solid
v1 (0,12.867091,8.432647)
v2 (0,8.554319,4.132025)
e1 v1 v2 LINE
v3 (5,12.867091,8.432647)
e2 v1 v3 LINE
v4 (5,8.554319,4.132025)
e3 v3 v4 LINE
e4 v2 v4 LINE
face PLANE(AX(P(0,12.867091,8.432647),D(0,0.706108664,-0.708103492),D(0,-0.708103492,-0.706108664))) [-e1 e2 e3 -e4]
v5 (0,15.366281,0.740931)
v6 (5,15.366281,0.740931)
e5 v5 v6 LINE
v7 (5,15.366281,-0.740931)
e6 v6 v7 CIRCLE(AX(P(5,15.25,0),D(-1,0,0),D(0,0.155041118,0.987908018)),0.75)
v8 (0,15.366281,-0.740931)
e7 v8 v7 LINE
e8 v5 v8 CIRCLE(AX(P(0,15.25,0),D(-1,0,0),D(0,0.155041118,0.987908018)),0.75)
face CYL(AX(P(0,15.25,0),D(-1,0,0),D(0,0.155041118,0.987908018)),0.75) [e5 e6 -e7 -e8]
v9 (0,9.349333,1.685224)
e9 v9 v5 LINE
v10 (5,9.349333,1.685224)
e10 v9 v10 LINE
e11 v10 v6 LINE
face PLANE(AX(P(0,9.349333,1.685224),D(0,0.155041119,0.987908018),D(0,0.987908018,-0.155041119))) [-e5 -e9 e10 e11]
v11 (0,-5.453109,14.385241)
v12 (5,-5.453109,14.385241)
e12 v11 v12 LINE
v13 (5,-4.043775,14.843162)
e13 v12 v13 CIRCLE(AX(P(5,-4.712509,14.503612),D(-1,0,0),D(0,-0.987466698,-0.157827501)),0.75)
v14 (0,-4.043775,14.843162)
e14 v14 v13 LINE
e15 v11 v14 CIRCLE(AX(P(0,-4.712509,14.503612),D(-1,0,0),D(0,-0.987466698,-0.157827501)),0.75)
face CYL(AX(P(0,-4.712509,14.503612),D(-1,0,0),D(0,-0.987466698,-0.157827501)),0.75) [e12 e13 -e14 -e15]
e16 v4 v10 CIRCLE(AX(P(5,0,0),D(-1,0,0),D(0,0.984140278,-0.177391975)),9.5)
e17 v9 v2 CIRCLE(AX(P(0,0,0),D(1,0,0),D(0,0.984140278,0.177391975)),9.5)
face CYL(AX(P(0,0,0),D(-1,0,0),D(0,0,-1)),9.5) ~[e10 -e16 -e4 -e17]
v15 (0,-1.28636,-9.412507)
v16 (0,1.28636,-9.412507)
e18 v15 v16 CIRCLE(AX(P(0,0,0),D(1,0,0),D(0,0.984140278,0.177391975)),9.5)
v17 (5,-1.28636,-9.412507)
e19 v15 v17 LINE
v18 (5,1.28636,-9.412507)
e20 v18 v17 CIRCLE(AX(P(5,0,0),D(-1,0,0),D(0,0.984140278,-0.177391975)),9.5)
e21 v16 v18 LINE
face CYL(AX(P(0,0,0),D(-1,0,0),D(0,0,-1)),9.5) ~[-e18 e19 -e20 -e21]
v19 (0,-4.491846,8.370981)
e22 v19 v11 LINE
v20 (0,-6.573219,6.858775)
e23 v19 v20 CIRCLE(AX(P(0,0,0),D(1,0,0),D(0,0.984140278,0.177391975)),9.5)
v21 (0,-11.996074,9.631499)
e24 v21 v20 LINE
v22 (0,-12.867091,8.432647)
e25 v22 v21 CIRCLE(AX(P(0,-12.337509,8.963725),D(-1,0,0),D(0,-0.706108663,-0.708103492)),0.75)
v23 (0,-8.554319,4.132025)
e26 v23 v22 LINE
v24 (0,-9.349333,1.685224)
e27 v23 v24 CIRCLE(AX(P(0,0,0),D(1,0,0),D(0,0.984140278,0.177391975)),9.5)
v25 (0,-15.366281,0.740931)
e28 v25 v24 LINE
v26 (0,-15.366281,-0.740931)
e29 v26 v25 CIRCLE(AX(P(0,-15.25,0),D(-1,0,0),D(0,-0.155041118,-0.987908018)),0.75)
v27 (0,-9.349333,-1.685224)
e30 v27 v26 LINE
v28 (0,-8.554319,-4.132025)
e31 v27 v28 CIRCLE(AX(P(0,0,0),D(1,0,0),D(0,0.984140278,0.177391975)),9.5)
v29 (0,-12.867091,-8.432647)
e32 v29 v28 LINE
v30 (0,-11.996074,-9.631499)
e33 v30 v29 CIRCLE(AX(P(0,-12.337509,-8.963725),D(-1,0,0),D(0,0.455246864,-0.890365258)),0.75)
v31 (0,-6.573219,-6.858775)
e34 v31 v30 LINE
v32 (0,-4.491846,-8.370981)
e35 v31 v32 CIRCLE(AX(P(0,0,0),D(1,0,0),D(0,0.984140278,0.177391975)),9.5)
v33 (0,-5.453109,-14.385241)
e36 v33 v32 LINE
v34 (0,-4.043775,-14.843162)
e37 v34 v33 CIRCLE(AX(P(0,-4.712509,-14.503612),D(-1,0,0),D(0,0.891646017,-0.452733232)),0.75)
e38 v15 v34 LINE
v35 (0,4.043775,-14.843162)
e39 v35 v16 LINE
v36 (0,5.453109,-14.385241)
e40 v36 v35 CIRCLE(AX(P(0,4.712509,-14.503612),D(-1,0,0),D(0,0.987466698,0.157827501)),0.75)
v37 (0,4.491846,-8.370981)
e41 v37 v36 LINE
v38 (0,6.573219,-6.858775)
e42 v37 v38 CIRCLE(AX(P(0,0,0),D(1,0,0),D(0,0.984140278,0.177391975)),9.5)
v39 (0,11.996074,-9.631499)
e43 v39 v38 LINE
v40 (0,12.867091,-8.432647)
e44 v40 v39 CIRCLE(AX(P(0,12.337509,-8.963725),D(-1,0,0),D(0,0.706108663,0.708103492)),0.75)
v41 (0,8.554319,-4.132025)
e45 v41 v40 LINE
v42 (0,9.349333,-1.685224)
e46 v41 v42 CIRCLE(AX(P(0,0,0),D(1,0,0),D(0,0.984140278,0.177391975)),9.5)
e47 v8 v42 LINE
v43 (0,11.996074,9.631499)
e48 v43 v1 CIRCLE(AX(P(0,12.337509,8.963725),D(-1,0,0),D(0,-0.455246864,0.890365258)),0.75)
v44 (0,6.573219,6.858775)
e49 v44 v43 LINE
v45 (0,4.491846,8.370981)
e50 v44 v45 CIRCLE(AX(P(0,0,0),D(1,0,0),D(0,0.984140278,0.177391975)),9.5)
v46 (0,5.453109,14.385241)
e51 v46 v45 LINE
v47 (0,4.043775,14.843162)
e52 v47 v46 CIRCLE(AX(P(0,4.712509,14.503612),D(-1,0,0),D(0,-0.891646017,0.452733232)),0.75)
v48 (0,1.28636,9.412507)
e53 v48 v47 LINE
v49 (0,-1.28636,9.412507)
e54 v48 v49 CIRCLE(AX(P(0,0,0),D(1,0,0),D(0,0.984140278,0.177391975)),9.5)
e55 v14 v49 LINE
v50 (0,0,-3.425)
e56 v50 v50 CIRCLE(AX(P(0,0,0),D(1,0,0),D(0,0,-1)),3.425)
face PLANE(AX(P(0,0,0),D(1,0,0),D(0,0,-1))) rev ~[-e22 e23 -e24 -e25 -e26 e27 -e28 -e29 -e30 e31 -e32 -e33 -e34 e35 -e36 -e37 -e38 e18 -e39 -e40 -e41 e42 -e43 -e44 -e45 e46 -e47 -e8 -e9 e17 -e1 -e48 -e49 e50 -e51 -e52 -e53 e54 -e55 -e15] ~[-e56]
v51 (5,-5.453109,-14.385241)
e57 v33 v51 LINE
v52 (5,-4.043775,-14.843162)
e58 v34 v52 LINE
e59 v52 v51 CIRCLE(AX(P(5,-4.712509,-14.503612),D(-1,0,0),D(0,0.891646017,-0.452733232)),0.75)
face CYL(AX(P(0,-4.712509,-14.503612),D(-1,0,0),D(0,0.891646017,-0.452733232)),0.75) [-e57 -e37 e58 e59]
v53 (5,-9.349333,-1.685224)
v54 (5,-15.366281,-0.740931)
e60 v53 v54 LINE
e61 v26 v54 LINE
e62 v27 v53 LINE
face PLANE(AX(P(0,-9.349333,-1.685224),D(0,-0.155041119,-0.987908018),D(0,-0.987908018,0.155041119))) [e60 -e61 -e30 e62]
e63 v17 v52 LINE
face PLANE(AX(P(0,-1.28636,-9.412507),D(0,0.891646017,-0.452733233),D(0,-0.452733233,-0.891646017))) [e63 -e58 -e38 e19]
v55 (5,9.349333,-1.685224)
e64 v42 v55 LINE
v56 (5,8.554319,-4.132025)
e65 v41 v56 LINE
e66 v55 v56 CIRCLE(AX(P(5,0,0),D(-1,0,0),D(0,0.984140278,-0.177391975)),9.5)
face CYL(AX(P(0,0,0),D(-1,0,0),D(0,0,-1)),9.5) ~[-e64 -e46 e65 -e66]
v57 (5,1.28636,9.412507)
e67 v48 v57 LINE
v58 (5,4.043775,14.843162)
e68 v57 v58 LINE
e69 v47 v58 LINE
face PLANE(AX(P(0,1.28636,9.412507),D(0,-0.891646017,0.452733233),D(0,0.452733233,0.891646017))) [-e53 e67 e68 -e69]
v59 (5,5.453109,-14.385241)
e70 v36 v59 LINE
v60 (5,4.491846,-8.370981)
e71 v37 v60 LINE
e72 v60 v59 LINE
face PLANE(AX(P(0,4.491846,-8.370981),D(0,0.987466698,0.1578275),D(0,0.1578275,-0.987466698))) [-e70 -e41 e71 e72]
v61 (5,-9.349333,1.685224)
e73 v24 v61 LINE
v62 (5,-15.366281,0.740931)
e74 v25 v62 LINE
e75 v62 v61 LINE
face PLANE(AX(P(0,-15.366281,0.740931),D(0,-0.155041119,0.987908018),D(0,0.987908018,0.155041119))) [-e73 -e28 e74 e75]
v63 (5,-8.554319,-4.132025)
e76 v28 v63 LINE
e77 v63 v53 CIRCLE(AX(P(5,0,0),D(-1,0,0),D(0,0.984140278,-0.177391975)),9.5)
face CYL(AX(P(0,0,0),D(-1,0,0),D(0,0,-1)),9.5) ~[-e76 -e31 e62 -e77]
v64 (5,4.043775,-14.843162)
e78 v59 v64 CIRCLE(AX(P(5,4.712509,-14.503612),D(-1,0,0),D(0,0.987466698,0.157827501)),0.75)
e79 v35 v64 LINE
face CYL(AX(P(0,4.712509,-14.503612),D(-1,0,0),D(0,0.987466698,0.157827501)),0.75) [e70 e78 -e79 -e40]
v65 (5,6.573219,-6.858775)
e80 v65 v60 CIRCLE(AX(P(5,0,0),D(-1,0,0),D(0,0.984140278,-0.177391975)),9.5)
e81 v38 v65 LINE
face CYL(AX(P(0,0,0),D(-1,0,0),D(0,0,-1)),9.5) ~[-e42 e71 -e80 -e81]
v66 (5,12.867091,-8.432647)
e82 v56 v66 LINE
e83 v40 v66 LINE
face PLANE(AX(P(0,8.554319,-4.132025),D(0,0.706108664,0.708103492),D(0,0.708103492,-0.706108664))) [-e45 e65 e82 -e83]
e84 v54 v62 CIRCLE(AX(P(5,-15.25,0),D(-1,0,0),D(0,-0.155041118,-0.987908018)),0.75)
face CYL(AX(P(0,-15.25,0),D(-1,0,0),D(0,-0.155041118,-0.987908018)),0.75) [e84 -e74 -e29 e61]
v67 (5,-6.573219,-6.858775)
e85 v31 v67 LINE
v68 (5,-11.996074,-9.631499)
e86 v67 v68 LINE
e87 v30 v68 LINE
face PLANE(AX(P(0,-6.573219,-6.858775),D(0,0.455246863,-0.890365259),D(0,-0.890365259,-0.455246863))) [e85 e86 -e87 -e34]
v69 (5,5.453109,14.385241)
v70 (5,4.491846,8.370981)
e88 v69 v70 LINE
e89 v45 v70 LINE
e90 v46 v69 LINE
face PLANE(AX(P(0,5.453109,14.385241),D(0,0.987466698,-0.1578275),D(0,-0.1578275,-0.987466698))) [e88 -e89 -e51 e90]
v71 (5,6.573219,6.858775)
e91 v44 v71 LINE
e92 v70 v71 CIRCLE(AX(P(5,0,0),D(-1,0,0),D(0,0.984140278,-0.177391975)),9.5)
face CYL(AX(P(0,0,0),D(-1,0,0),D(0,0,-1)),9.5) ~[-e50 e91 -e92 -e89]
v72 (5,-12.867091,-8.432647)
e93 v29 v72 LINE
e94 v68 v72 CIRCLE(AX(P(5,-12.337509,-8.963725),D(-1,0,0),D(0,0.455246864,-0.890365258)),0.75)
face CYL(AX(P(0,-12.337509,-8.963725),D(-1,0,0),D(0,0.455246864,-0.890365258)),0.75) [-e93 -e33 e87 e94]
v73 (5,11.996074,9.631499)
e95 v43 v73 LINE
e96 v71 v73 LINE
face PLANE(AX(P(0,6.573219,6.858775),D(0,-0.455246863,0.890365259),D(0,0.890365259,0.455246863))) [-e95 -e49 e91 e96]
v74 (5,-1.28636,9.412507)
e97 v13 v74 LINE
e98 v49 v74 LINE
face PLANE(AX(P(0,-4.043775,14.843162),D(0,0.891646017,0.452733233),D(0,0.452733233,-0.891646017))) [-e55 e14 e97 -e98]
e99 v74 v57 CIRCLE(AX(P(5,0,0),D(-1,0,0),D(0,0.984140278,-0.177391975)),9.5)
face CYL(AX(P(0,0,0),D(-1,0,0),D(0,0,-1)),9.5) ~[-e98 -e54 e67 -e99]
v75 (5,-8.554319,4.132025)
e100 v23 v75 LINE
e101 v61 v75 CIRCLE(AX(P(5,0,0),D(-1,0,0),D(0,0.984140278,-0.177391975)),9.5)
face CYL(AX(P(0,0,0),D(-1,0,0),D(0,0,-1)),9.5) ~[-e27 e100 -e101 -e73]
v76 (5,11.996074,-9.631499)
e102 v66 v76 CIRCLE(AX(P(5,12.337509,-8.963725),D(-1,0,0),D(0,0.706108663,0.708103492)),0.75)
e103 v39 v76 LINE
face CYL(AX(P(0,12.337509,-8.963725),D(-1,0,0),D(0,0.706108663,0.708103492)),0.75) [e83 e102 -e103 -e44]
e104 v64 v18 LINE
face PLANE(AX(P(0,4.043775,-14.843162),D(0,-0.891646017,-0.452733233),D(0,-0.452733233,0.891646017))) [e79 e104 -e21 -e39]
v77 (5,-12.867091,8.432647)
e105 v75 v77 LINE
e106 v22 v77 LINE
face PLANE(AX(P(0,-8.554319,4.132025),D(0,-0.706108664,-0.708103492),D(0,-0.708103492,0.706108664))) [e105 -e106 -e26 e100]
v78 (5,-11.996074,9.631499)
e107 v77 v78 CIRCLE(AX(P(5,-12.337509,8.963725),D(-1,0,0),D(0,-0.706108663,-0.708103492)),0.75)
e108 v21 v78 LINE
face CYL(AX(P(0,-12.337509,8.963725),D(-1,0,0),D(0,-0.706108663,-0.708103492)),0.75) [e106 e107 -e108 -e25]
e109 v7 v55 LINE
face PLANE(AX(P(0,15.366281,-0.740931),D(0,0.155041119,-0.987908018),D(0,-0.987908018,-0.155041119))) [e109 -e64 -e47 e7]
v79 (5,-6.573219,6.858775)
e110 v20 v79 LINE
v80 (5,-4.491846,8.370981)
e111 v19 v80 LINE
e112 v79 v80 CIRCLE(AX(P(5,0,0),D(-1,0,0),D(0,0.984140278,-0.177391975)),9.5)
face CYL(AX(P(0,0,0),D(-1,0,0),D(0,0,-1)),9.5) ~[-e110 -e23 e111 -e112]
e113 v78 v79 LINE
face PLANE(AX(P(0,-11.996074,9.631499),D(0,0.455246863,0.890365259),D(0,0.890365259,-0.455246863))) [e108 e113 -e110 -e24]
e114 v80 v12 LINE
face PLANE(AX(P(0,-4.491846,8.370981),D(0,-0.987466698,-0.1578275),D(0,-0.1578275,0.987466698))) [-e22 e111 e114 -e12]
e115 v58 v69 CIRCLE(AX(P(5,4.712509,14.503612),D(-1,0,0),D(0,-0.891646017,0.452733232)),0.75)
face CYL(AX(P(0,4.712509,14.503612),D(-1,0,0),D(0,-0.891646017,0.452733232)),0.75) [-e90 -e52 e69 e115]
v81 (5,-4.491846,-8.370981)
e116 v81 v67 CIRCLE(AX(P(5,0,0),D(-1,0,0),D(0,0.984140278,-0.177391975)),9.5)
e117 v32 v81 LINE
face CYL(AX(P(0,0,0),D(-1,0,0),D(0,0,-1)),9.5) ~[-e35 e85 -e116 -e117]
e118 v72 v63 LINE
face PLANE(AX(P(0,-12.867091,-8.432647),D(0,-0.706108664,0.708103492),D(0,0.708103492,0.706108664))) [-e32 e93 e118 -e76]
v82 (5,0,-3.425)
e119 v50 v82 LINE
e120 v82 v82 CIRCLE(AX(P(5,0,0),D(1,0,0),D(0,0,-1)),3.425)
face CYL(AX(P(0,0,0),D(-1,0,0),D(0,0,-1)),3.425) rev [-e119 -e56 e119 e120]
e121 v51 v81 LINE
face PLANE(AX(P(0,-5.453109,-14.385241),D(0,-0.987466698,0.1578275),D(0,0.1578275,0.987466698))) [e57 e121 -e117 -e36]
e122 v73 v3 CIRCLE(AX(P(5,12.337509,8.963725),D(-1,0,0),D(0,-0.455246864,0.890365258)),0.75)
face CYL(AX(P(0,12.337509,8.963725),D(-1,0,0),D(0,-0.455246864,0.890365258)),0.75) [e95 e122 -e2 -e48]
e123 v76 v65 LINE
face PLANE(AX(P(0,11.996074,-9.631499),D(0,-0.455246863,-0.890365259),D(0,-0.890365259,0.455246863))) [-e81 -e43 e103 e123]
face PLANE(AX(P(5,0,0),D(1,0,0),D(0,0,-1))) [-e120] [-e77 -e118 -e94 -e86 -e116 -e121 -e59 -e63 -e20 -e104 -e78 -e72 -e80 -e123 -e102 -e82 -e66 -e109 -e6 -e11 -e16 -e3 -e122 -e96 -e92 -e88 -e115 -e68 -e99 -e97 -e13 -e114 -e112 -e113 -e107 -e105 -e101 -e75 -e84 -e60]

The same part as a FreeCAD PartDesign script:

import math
import FreeCAD as App
import Part
import Sketcher

doc = App.newDocument("Part")
body = doc.addObject("PartDesign::Body", "Body")

# Sketch on YZ plane
sketch1 = body.newObject("Sketcher::SketchObject", "Sketch")
sketch1.AttachmentSupport = (doc.getObject("YZ_Plane"), [""])
sketch1.MapMode = "FlatFace"
sketch1.addGeometry([
    Part.Circle(App.Vector(0, 0, 0), App.Vector(0, 0, 1), 9.5),
    Part.Circle(App.Vector(0, 0, 0), App.Vector(0, 0, 1), 3.4),
], False)
sketch1.addConstraint([
    Sketcher.Constraint("Coincident", 0, 3, -1, 1),
    Sketcher.Constraint("Coincident", 1, 3, -1, 1),
    Sketcher.Constraint("Diameter", 0, 19.0),
    Sketcher.Constraint("Diameter", 1, 6.85),
])
pad1 = body.newObject("PartDesign::Pad", "Pad")
pad1.Profile = sketch1
pad1.Length = 5

# Sketch on YZ plane
sketch2 = body.newObject("Sketcher::SketchObject", "Sketch001")
sketch2.AttachmentSupport = (doc.getObject("YZ_Plane"), [""])
sketch2.MapMode = "FlatFace"
sketch2.addGeometry([
    Part.LineSegment(App.Vector(15.4, -0.7, 0), App.Vector(9.3, -1.7, 0)),
    Part.ArcOfCircle(Part.Circle(App.Vector(0, 0, 0), App.Vector(0, 0, 1), 9.5), math.radians(-10), math.radians(10)),
    Part.LineSegment(App.Vector(9.3, 1.7, 0), App.Vector(15.4, 0.7, 0)),
    Part.ArcOfCircle(Part.Circle(App.Vector(15.2, 0, 0), App.Vector(0, 0, 1), 0.8), math.radians(-81), math.radians(81)),
], False)
sketch2.addConstraint([
    Sketcher.Constraint("Coincident", 0, 2, 1, 1),
    Sketcher.Constraint("Coincident", 1, 2, 2, 1),
    Sketcher.Constraint("Tangent", 2, 2, 3, 2),
    Sketcher.Constraint("Tangent", 3, 1, 0, 1),
    Sketcher.Constraint("Coincident", 1, 3, -1, 1),
    Sketcher.Constraint("Symmetric", 2, 2, 3, 1, -1),
    Sketcher.Constraint("Radius", 1, 9.5),
    Sketcher.Constraint("Radius", 3, 0.75),
    Sketcher.Constraint("DistanceX", -1, 1, 3, 3, 15.25),
    Sketcher.Constraint("DistanceX", -1, 1, 2, 2, 15.366281),
])
pad2 = body.newObject("PartDesign::Pad", "Pad001")
pad2.Profile = sketch2
pad2.Length = 5
doc.recompute()

polarpattern = body.newObject("PartDesign::PolarPattern", "PolarPattern")
polarpattern.Originals = [pad2]
polarpattern.Axis = (doc.getObject("X_Axis"), [""])
polarpattern.Angle = 360
polarpattern.Occurrences = 10
body.Tip = polarpattern

doc.recompute()
